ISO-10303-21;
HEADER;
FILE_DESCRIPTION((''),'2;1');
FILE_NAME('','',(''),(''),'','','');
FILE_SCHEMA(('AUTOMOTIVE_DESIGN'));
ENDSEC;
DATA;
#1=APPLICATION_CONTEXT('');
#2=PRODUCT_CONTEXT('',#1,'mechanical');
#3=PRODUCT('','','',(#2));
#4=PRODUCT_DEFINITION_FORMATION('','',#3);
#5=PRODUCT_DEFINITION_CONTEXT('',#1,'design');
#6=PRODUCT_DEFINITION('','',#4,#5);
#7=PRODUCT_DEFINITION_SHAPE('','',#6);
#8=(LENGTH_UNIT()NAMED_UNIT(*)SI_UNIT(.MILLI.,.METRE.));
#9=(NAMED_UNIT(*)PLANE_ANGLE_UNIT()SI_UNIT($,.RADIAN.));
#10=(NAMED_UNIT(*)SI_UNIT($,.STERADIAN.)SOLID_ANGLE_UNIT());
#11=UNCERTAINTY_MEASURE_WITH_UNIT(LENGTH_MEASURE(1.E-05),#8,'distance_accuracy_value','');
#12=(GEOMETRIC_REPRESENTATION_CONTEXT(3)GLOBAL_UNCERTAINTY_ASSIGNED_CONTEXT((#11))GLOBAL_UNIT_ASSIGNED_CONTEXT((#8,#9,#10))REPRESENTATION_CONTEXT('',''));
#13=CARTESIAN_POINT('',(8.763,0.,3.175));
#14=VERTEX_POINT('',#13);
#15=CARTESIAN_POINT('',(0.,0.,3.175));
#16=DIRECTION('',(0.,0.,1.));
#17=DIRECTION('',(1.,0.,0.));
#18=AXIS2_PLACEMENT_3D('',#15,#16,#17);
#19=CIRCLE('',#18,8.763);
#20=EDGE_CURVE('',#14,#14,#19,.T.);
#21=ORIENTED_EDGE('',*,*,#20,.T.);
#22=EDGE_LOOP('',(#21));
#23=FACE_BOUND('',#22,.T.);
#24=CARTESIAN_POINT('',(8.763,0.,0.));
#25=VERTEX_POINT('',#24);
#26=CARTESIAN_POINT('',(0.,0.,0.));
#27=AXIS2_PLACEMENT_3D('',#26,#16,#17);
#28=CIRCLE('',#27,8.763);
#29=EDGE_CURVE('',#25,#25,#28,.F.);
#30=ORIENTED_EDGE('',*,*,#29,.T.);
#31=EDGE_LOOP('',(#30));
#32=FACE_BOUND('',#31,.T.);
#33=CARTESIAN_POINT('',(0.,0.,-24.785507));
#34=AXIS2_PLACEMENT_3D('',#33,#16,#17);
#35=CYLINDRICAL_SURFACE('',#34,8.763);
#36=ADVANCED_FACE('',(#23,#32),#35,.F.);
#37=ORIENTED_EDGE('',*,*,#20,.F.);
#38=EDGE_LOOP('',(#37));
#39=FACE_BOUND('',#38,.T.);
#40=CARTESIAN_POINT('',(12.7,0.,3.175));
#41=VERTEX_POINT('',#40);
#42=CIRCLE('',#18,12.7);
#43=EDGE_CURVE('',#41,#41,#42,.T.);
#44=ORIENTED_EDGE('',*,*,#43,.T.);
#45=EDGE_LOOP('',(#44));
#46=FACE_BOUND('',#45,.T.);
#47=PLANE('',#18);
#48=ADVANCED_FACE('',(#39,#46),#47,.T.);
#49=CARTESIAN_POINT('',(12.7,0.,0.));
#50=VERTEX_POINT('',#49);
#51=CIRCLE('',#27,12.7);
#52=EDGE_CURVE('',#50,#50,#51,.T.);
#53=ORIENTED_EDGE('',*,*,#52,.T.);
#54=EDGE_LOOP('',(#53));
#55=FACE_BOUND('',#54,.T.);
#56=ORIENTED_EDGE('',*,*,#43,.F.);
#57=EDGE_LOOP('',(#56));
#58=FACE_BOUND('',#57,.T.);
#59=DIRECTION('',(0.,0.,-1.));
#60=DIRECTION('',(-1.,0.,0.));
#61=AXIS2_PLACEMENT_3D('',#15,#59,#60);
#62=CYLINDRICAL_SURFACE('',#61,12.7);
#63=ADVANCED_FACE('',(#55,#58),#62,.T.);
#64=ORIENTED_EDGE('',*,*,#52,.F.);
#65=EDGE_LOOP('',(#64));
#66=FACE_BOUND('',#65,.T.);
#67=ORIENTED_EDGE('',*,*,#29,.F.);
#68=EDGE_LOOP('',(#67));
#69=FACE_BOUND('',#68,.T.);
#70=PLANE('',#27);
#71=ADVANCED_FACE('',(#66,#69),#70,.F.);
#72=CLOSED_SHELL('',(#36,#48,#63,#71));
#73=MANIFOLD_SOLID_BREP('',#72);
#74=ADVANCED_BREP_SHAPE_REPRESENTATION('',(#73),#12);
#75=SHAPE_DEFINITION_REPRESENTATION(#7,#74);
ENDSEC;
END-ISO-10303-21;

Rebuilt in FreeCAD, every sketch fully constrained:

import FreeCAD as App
import Part
import Sketcher

V = App.Vector
Q = App.Units.Quantity

doc = App.newDocument("Part")
params = doc.addObject("Spreadsheet::Sheet", "Params")
for row, (alias, value) in enumerate([
    ("sketch1_diameter", "1 in"),
    ("pad1_length", "0.125 in"),
    ("sketch2_diameter", "0.69 in"),
    ("pocket1_length", "0.125 in"),
], start=1):
    params.set(f"A{row}", alias)
    params.set(f"B{row}", "=" + value)
    params.setAlias(f"B{row}", alias)

body = doc.addObject("PartDesign::Body", "Body")

# Sketch on XY plane
sketch1 = body.newObject("Sketcher::SketchObject", "Sketch")
sketch1.AttachmentSupport = (doc.getObject("XY_Plane"), [""])
sketch1.MapMode = "FlatFace"
sketch1.addGeometry(Part.Circle(V(0, 0, 0), V(0, 0, 1), 13), False)
sketch1.addConstraint([
    Sketcher.Constraint("Coincident", 0, 3, -1, 1),
    Sketcher.Constraint("Diameter", 0, Q("1 in")),
])
sketch1.setExpression("Constraints[1]", "Params.sketch1_diameter")
pad1 = body.newObject("PartDesign::Pad", "Pad")
pad1.Profile = sketch1
pad1.setExpression("Length", "Params.pad1_length")

# Sketch on XY plane
sketch2 = body.newObject("Sketcher::SketchObject", "Sketch001")
sketch2.AttachmentSupport = (doc.getObject("XY_Plane"), [""])
sketch2.MapMode = "FlatFace"
sketch2.AttachmentOffset = App.Placement(V(0, 0, 0.125 * 25.4), App.Rotation())
sketch2.addGeometry(Part.Circle(V(0, 0, 0), V(0, 0, 1), 9), False)
sketch2.addConstraint([
    Sketcher.Constraint("Coincident", 0, 3, -1, 1),
    Sketcher.Constraint("Diameter", 0, Q("0.69 in")),
])
sketch2.setExpression("Constraints[1]", "Params.sketch2_diameter")
pocket1 = body.newObject("PartDesign::Pocket", "Pocket")
pocket1.Profile = sketch2
pocket1.setExpression("Length", "Params.pocket1_length")

doc.recompute()
